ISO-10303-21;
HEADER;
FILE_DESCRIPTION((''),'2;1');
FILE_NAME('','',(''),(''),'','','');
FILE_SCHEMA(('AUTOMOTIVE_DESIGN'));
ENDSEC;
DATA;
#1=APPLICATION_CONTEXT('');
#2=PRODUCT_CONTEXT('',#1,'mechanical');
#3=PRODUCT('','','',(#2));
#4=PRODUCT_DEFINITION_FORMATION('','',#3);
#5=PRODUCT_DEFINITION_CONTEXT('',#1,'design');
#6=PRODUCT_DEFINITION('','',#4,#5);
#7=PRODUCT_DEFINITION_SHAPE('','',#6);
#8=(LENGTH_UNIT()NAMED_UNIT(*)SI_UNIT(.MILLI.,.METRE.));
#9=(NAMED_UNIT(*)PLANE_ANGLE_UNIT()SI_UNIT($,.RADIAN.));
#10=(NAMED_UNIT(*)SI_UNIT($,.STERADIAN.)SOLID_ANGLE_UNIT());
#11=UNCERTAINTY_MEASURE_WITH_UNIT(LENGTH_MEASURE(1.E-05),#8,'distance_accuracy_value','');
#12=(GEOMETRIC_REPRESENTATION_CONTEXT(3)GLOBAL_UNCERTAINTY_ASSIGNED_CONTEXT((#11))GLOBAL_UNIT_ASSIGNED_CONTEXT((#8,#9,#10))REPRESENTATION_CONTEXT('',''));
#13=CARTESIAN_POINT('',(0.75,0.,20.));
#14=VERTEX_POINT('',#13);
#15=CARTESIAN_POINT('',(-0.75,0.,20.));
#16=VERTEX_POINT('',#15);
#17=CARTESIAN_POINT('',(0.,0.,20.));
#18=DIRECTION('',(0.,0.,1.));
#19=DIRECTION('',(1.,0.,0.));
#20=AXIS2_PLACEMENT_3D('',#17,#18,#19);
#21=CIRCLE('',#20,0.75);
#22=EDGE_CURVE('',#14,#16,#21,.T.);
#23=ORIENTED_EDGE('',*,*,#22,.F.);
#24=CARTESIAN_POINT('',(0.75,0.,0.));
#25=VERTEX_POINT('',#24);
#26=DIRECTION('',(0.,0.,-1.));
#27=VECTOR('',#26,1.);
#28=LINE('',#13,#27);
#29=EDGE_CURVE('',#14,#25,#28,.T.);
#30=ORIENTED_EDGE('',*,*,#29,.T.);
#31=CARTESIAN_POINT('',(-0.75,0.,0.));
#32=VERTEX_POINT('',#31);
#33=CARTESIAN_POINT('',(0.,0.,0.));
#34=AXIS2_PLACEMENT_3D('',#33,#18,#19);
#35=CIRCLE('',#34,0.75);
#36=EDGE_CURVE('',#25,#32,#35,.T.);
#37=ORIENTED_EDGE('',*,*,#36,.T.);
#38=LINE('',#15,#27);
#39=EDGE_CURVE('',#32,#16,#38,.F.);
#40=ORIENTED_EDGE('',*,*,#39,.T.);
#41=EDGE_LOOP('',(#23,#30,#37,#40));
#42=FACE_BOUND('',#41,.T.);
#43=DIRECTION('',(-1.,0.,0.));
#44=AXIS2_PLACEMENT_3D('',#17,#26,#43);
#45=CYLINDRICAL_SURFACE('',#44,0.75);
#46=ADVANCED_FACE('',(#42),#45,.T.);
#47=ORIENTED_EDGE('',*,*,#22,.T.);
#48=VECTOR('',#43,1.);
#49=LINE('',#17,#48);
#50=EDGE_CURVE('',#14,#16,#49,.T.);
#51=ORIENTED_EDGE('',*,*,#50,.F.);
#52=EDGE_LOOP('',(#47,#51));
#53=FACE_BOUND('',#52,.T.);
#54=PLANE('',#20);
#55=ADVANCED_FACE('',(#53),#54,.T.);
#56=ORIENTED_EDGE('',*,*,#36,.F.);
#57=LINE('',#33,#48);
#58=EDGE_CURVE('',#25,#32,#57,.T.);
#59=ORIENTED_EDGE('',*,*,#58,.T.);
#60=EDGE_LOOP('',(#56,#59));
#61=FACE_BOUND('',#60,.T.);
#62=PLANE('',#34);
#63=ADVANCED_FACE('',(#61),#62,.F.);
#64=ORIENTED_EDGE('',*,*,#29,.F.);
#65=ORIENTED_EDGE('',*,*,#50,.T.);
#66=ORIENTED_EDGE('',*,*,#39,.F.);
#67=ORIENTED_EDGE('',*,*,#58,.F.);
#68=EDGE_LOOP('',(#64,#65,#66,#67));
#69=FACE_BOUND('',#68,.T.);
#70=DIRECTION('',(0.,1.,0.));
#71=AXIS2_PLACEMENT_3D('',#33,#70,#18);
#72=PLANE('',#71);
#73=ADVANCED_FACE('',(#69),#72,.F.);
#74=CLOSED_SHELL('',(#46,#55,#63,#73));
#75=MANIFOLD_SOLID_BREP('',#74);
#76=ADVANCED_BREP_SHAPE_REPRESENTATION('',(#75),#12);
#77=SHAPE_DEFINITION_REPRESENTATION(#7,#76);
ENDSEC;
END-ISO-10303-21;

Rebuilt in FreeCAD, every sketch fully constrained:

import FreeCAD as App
import Part
import Sketcher
from FreeCAD import Vector
Q = App.Units.Quantity


def add_polygon(sketch, points):
    """Adds a closed chain of lines whose ends are joined by coincident constraints."""
    first, n = sketch.GeometryCount, len(points)
    for a, b in zip(points, points[1:] + points[:1]):
        sketch.addGeometry(Part.LineSegment(App.Vector(*a, 0), App.Vector(*b, 0)), False)
    for i in range(n):
        sketch.addConstraint(Sketcher.Constraint("Coincident", first + i, 2, first + (i + 1) % n, 1))

doc = App.newDocument("Part")
body = doc.addObject("PartDesign::Body", "Body")

sketch1 = body.newObject("Sketcher::SketchObject", "Sketch")
sketch1.AttachmentSupport = (doc.getObject("XY_Plane"), [""])
sketch1.MapMode = "FlatFace"
sketch1.addGeometry(Part.Circle(Vector(0, 0, 0), Vector(0, 0, 1), 0.8), False)
sketch1.addConstraint([
    Sketcher.Constraint("Coincident", 0, 3, -1, 1),
    Sketcher.Constraint("Diameter", 0, Q("1.5 mm")),
])
pad1 = body.newObject("PartDesign::Pad", "Pad")
pad1.Profile = sketch1
pad1.Length = 20

sketch2 = body.newObject("Sketcher::SketchObject", "Sketch001")
sketch2.AttachmentSupport = (doc.getObject("XZ_Plane"), [""])
sketch2.MapMode = "FlatFace"
add_polygon(sketch2, [(-7, -5), (-7, 24), (7, 24), (7, -5)])
sketch2.addConstraint([
    Sketcher.Constraint("Vertical", 0),
    Sketcher.Constraint("Horizontal", 1),
    Sketcher.Constraint("Vertical", 2),
    Sketcher.Constraint("Horizontal", 3),
    Sketcher.Constraint("DistanceX", 1, 1, 1, 2, Q("13.825579 mm")),
    Sketcher.Constraint("DistanceY", 2, 2, -1, 1, Q("5.007401 mm")),
    Sketcher.Constraint("DistanceY", 0, 1, 0, 2, Q("29.415027 mm")),
    Sketcher.Constraint("DistanceX", 0, 2, -1, 1, Q("6.91279 mm")),
])
pocket1 = body.newObject("PartDesign::Pocket", "Pocket")
pocket1.Profile = sketch2
pocket1.Length = 20
pocket1.Reversed = True

doc.recompute()
